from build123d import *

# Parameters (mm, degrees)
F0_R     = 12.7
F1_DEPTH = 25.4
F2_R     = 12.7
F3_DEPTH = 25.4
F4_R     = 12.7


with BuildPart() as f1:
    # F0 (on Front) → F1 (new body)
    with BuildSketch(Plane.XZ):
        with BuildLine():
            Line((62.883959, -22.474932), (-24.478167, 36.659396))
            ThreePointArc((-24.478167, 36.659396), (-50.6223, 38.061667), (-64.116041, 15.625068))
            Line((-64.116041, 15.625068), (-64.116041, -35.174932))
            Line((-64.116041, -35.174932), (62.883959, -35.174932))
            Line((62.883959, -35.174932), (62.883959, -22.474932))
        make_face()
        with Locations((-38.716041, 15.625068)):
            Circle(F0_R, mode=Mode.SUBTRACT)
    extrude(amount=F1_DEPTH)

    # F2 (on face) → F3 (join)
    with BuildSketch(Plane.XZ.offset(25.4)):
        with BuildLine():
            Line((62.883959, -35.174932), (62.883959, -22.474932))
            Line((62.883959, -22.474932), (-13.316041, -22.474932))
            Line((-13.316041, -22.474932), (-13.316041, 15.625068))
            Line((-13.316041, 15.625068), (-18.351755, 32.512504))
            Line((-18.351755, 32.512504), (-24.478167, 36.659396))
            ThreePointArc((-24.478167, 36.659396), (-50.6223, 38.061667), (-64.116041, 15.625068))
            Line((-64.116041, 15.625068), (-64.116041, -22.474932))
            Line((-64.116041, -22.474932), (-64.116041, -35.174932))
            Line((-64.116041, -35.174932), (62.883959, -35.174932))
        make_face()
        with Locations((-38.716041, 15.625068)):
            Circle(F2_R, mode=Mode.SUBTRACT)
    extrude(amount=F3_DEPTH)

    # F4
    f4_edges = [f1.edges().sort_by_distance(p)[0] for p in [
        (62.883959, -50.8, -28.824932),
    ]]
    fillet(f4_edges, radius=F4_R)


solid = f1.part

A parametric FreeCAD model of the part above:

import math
import FreeCAD as App
import Part
import Sketcher
Q = App.Units.Quantity


def edges_at(feature, points):
    """Names of the edges that pass closest to the given points."""
    edges = feature.Shape.Edges
    near = lambda p: min(range(len(edges)), key=lambda i: edges[i].distToShape(Part.Vertex(*p))[0])
    return sorted({f"Edge{near(p) + 1}" for p in points})

doc = App.newDocument("Part")
params = doc.addObject("Spreadsheet::Sheet", "Params")
for row, (alias, value) in enumerate([
    ("sketch1_diameter", "1 in"),
    ("sketch1_radius", "1 in"),
    ("sketch1_width", "5 in"),
    ("sketch1_height", "2 in"),
    ("sketch1_height2", "0.5 in"),
    ("pad1_length", "1 in"),
    ("sketch2_diameter", "1 in"),
    ("sketch2_radius", "1 in"),
    ("sketch2_width", "3 in"),
    ("sketch2_width2", "5 in"),
    ("sketch2_height", "2 in"),
    ("pad2_length", "1 in"),
    ("fillet_radius", "0.5 in"),
], start=1):
    params.set(f"A{row}", alias)
    params.set(f"B{row}", "=" + value)
    params.setAlias(f"B{row}", alias)

body = doc.addObject("PartDesign::Body", "Body")

sketch1 = body.newObject("Sketcher::SketchObject", "Sketch")
sketch1.AttachmentSupport = (doc.getObject("XZ_Plane"), [""])
sketch1.MapMode = "FlatFace"
sketch1.addGeometry([
    Part.LineSegment(App.Vector(62.883959, -22.474932, 0), App.Vector(-24.478167, 36.659396, 0)),
    Part.ArcOfCircle(Part.Circle(App.Vector(-38.71604, 15.625067, 0), App.Vector(0, 0, 1), 25.400001), math.radians(55.906421), math.radians(179.999998)),
    Part.LineSegment(App.Vector(-64.116041, 15.625068, 0), App.Vector(-64.116041, -35.174932, 0)),
    Part.LineSegment(App.Vector(-64.116041, -35.174932, 0), App.Vector(62.883959, -35.174932, 0)),
    Part.LineSegment(App.Vector(62.883959, -35.174932, 0), App.Vector(62.883959, -22.474932, 0)),
    Part.Circle(App.Vector(-38.716041, 15.625068, 0), App.Vector(0, 0, 1), 12.7),
], False)
sketch1.addConstraint([
    Sketcher.Constraint("Tangent", 0, 2, 1, 1),
    Sketcher.Constraint("Tangent", 1, 2, 2, 1),
    Sketcher.Constraint("Coincident", 2, 2, 3, 1),
    Sketcher.Constraint("Coincident", 3, 2, 4, 1),
    Sketcher.Constraint("Coincident", 4, 2, 0, 1),
    Sketcher.Constraint("Vertical", 2),
    Sketcher.Constraint("Horizontal", 3),
    Sketcher.Constraint("Vertical", 4),
    Sketcher.Constraint("Coincident", 5, 3, 1, 3),
    Sketcher.Constraint("Diameter", 5, Q("1 in")),
    Sketcher.Constraint("Radius", 1, Q("1 in")),
    Sketcher.Constraint("DistanceX", 3, 1, 3, 2, Q("5 in")),
    Sketcher.Constraint("DistanceY", 2, 2, 2, 1, Q("2 in")),
    Sketcher.Constraint("DistanceY", 4, 1, 4, 2, Q("0.5 in")),
    Sketcher.Constraint("DistanceX", 1, 3, -1, 1, 38.71604),
    Sketcher.Constraint("DistanceY", -1, 1, 5, 3, 15.625068),
])
sketch1.setExpression("Constraints[9]", "Params.sketch1_diameter")
sketch1.setExpression("Constraints[10]", "Params.sketch1_radius")
sketch1.setExpression("Constraints[11]", "Params.sketch1_width")
sketch1.setExpression("Constraints[12]", "Params.sketch1_height")
sketch1.setExpression("Constraints[13]", "Params.sketch1_height2")
pad1 = body.newObject("PartDesign::Pad", "Pad")
pad1.Profile = sketch1
pad1.setExpression("Length", "Params.pad1_length")

sketch2 = body.newObject("Sketcher::SketchObject", "Sketch001")
sketch2.AttachmentSupport = (doc.getObject("XZ_Plane"), [""])
sketch2.MapMode = "FlatFace"
sketch2.AttachmentOffset = App.Placement(App.Vector(0, 0, 1 * 25.4), App.Rotation())
sketch2.addGeometry([
    Part.LineSegment(App.Vector(62.883959, -35.174932, 0), App.Vector(62.883959, -22.474932, 0)),
    Part.LineSegment(App.Vector(62.883959, -22.474932, 0), App.Vector(-13.316041, -22.474932, 0)),
    Part.LineSegment(App.Vector(-13.316041, -22.474932, 0), App.Vector(-13.316041, 15.625068, 0)),
    Part.LineSegment(App.Vector(-13.316041, 15.625068, 0), App.Vector(-18.351755, 32.512504, 0)),
    Part.LineSegment(App.Vector(-18.351755, 32.512504, 0), App.Vector(-24.478167, 36.659396, 0)),
    Part.ArcOfCircle(Part.Circle(App.Vector(-38.71604, 15.625067, 0), App.Vector(0, 0, 1), 25.400001), math.radians(55.906421), math.radians(179.999998)),
    Part.LineSegment(App.Vector(-64.116041, 15.625068, 0), App.Vector(-64.116041, -35.174932, 0)),
    Part.LineSegment(App.Vector(-64.116041, -35.174932, 0), App.Vector(62.883959, -35.174932, 0)),
    Part.Circle(App.Vector(-38.716041, 15.625068, 0), App.Vector(0, 0, 1), 12.7),
], False)
sketch2.addConstraint([
    Sketcher.Constraint("Coincident", 0, 2, 1, 1),
    Sketcher.Constraint("Coincident", 1, 2, 2, 1),
    Sketcher.Constraint("Coincident", 2, 2, 3, 1),
    Sketcher.Constraint("Coincident", 3, 2, 4, 1),
    Sketcher.Constraint("Tangent", 4, 2, 5, 1),
    Sketcher.Constraint("Tangent", 5, 2, 6, 1),
    Sketcher.Constraint("Coincident", 6, 2, 7, 1),
    Sketcher.Constraint("Coincident", 7, 2, 0, 1),
    Sketcher.Constraint("Vertical", 0),
    Sketcher.Constraint("Horizontal", 1),
    Sketcher.Constraint("Vertical", 2),
    Sketcher.Constraint("Vertical", 6),
    Sketcher.Constraint("Horizontal", 7),
    Sketcher.Constraint("Coincident", 8, 3, 5, 3),
    Sketcher.Constraint("Horizontal", 8, 3, 2, 2),
    Sketcher.Constraint("Diameter", 8, Q("1 in")),
    Sketcher.Constraint("Radius", 5, Q("1 in")),
    Sketcher.Constraint("DistanceX", 1, 2, 1, 1, Q("3 in")),
    Sketcher.Constraint("DistanceX", 7, 1, 7, 2, Q("5 in")),
    Sketcher.Constraint("DistanceY", 6, 2, 6, 1, Q("2 in")),
    Sketcher.Constraint("DistanceY", 0, 1, 0, 2, Q("0.5 in")),
    Sketcher.Constraint("Distance", 4, 7.397948),
    Sketcher.Constraint("DistanceX", 5, 3, -1, 1, 38.71604),
    Sketcher.Constraint("DistanceY", -1, 1, 8, 3, 15.625068),
    Sketcher.Constraint("DistanceX", 4, 2, 3, 2, 6.126412),
])
sketch2.setExpression("Constraints[15]", "Params.sketch2_diameter")
sketch2.setExpression("Constraints[16]", "Params.sketch2_radius")
sketch2.setExpression("Constraints[17]", "Params.sketch2_width")
sketch2.setExpression("Constraints[18]", "Params.sketch2_width2")
sketch2.setExpression("Constraints[19]", "Params.sketch2_height")
pad2 = body.newObject("PartDesign::Pad", "Pad001")
pad2.Profile = sketch2
pad2.setExpression("Length", "Params.pad2_length")
doc.recompute()

fillet = body.newObject("PartDesign::Fillet", "Fillet")
fillet.Base = (pad2, edges_at(pad2, [(62.884, -50.8, -28.825)]))
fillet.setExpression("Radius", "Params.fillet_radius")

doc.recompute()
